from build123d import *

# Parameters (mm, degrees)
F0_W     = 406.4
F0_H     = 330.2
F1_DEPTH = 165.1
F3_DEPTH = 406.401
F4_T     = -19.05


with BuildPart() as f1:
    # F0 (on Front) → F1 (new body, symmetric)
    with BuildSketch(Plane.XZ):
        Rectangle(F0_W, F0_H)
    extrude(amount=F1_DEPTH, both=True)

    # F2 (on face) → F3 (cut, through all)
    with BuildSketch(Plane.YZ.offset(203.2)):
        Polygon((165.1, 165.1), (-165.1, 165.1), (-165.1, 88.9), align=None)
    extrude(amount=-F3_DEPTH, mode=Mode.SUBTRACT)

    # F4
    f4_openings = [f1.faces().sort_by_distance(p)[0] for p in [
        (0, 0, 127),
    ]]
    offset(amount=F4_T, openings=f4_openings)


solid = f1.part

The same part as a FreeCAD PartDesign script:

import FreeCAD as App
import Part
import Sketcher
Q = App.Units.Quantity


def faces_at(feature, points):
    """Names of the faces that lie closest to the given points."""
    faces = feature.Shape.Faces
    near = lambda p: min(range(len(faces)), key=lambda i: faces[i].distToShape(Part.Vertex(*p))[0])
    return sorted({f"Face{near(p) + 1}" for p in points})


def add_polygon(sketch, points):
    """Adds a closed chain of lines whose ends are joined by coincident constraints."""
    first, n = sketch.GeometryCount, len(points)
    for a, b in zip(points, points[1:] + points[:1]):
        sketch.addGeometry(Part.LineSegment(App.Vector(*a, 0), App.Vector(*b, 0)), False)
    for i in range(n):
        sketch.addConstraint(Sketcher.Constraint("Coincident", first + i, 2, first + (i + 1) % n, 1))

doc = App.newDocument("Part")
params = doc.addObject("Spreadsheet::Sheet", "Params")
for row, (alias, value) in enumerate([
    ("sketch1_width", "16 in"),
    ("sketch1_height", "13 in"),
    ("pad1_length", "13 in"),
    ("sketch2_width", "13 in"),
    ("sketch2_height", "3 in"),
    ("thickness_wall", "0.75 in"),
], start=1):
    params.set(f"A{row}", alias)
    params.set(f"B{row}", "=" + value)
    params.setAlias(f"B{row}", alias)

body = doc.addObject("PartDesign::Body", "Body")

# Sketch on XZ plane
sketch1 = body.newObject("Sketcher::SketchObject", "Sketch")
sketch1.AttachmentSupport = (doc.getObject("XZ_Plane"), [""])
sketch1.MapMode = "FlatFace"
add_polygon(sketch1, [(-203, 165), (-203, -165), (203, -165), (203, 165)])  # lines 0-3
sketch1.addConstraint([
    Sketcher.Constraint("Vertical", 0),
    Sketcher.Constraint("Horizontal", 1),
    Sketcher.Constraint("Vertical", 2),
    Sketcher.Constraint("Horizontal", 3),
    Sketcher.Constraint("Symmetric", 0, 2, 2, 2, -1, 1),
    Sketcher.Constraint("DistanceX", 1, 1, 1, 2, Q("16 in")),
    Sketcher.Constraint("DistanceY", 0, 2, 0, 1, Q("13 in")),
])
sketch1.setExpression("Constraints[9]", "Params.sketch1_width")
sketch1.setExpression("Constraints[10]", "Params.sketch1_height")
pad1 = body.newObject("PartDesign::Pad", "Pad")
pad1.Profile = sketch1
pad1.setExpression("Length", "Params.pad1_length")
pad1.Midplane = True

# Sketch on YZ plane
sketch2 = body.newObject("Sketcher::SketchObject", "Sketch001")
sketch2.AttachmentSupport = (doc.getObject("YZ_Plane"), [""])
sketch2.MapMode = "FlatFace"
sketch2.AttachmentOffset = App.Placement(App.Vector(0, 0, 8 * 25.4), App.Rotation())
add_polygon(sketch2, [(165, 165), (-165, 165), (-165, 89)])  # lines 0-2
sketch2.addConstraint([
    Sketcher.Constraint("Horizontal", 0),
    Sketcher.Constraint("Vertical", 1),
    Sketcher.Constraint("DistanceX", 0, 2, 0, 1, Q("13 in")),
    Sketcher.Constraint("DistanceY", 1, 2, 1, 1, Q("3 in")),
    Sketcher.Constraint("DistanceX", 0, 2, -1, 1, Q("6.5 in")),
    Sketcher.Constraint("DistanceY", -1, 1, 0, 2, Q("6.5 in")),
])
sketch2.setExpression("Constraints[5]", "Params.sketch2_width")
sketch2.setExpression("Constraints[6]", "Params.sketch2_height")
pocket1 = body.newObject("PartDesign::Pocket", "Pocket")
pocket1.Profile = sketch2
pocket1.Type = "ThroughAll"
doc.recompute()

thickness = body.newObject("PartDesign::Thickness", "Thickness")
thickness.Base = (pocket1, faces_at(pocket1, [(0, 0, 127)]))
thickness.setExpression("Value", "Params.thickness_wall")
thickness.Reversed = True
thickness.Join = "Arc"

doc.recompute()
